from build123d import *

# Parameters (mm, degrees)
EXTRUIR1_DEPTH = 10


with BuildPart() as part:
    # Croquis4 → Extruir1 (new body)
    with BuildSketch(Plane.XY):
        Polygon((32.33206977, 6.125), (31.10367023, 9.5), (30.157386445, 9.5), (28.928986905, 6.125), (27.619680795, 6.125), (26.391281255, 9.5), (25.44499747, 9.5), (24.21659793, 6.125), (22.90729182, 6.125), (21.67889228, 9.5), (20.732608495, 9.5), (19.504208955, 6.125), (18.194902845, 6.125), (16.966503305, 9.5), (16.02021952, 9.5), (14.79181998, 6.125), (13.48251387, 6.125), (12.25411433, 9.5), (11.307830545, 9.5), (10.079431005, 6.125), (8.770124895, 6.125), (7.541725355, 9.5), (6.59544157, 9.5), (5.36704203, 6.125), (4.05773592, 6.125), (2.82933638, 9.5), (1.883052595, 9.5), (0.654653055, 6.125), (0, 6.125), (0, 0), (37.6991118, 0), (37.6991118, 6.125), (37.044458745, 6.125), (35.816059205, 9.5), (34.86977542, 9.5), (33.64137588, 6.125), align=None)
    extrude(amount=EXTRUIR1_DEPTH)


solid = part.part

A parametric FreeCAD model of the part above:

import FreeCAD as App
import Part
import Sketcher

V = App.Vector
Q = App.Units.Quantity

doc = App.newDocument("Part")
body = doc.addObject("PartDesign::Body", "Body")

# Sketch on XY plane
sketch1 = body.newObject("Sketcher::SketchObject", "Sketch")
sketch1.AttachmentSupport = (doc.getObject("XY_Plane"), [""])
sketch1.MapMode = "FlatFace"
sketch1.addGeometry([
    Part.LineSegment(V(32.3, 6.1, 0), V(31.1, 9.5, 0)),  # 0
    Part.LineSegment(V(31.1, 9.5, 0), V(30.2, 9.5, 0)),  # 1
    Part.LineSegment(V(30.2, 9.5, 0), V(28.9, 6.1, 0)),  # 2
    Part.LineSegment(V(28.9, 6.1, 0), V(27.6, 6.1, 0)),  # 3
    Part.LineSegment(V(27.6, 6.1, 0), V(26.4, 9.5, 0)),  # 4
    Part.LineSegment(V(26.4, 9.5, 0), V(25.4, 9.5, 0)),  # 5
    Part.LineSegment(V(25.4, 9.5, 0), V(24.2, 6.1, 0)),  # 6
    Part.LineSegment(V(24.2, 6.1, 0), V(22.9, 6.1, 0)),  # 7
    Part.LineSegment(V(22.9, 6.1, 0), V(21.7, 9.5, 0)),  # 8
    Part.LineSegment(V(21.7, 9.5, 0), V(20.7, 9.5, 0)),  # 9
    Part.LineSegment(V(20.7, 9.5, 0), V(19.5, 6.1, 0)),  # 10
    Part.LineSegment(V(19.5, 6.1, 0), V(18.2, 6.1, 0)),  # 11
    Part.LineSegment(V(18.2, 6.1, 0), V(17, 9.5, 0)),  # 12
    Part.LineSegment(V(17, 9.5, 0), V(16, 9.5, 0)),  # 13
    Part.LineSegment(V(16, 9.5, 0), V(14.8, 6.1, 0)),  # 14
    Part.LineSegment(V(14.8, 6.1, 0), V(13.5, 6.1, 0)),  # 15
    Part.LineSegment(V(13.5, 6.1, 0), V(12.3, 9.5, 0)),  # 16
    Part.LineSegment(V(12.3, 9.5, 0), V(11.3, 9.5, 0)),  # 17
    Part.LineSegment(V(11.3, 9.5, 0), V(10.1, 6.1, 0)),  # 18
    Part.LineSegment(V(10.1, 6.1, 0), V(8.8, 6.1, 0)),  # 19
    Part.LineSegment(V(8.8, 6.1, 0), V(7.5, 9.5, 0)),  # 20
    Part.LineSegment(V(7.5, 9.5, 0), V(6.6, 9.5, 0)),  # 21
    Part.LineSegment(V(6.6, 9.5, 0), V(5.4, 6.1, 0)),  # 22
    Part.LineSegment(V(5.4, 6.1, 0), V(4.1, 6.1, 0)),  # 23
    Part.LineSegment(V(4.1, 6.1, 0), V(2.8, 9.5, 0)),  # 24
    Part.LineSegment(V(2.8, 9.5, 0), V(1.9, 9.5, 0)),  # 25
    Part.LineSegment(V(1.9, 9.5, 0), V(0.7, 6.1, 0)),  # 26
    Part.LineSegment(V(0.7, 6.1, 0), V(0, 6.1, 0)),  # 27
    Part.LineSegment(V(0, 6.1, 0), V(0, 0, 0)),  # 28
    Part.LineSegment(V(0, 0, 0), V(37.7, 0, 0)),  # 29
    Part.LineSegment(V(37.7, 0, 0), V(37.7, 6.1, 0)),  # 30
    Part.LineSegment(V(37.7, 6.1, 0), V(37, 6.1, 0)),  # 31
    Part.LineSegment(V(37, 6.1, 0), V(35.8, 9.5, 0)),  # 32
    Part.LineSegment(V(35.8, 9.5, 0), V(34.9, 9.5, 0)),  # 33
    Part.LineSegment(V(34.9, 9.5, 0), V(33.6, 6.1, 0)),  # 34
    Part.LineSegment(V(33.6, 6.1, 0), V(32.3, 6.1, 0)),  # 35
], False)
sketch1.addConstraint([
    Sketcher.Constraint("Coincident", 0, 2, 1, 1),
    Sketcher.Constraint("Coincident", 1, 2, 2, 1),
    Sketcher.Constraint("Coincident", 2, 2, 3, 1),
    Sketcher.Constraint("Coincident", 3, 2, 4, 1),
    Sketcher.Constraint("Coincident", 4, 2, 5, 1),
    Sketcher.Constraint("Coincident", 5, 2, 6, 1),
    Sketcher.Constraint("Coincident", 6, 2, 7, 1),
    Sketcher.Constraint("Coincident", 7, 2, 8, 1),
    Sketcher.Constraint("Coincident", 8, 2, 9, 1),
    Sketcher.Constraint("Coincident", 9, 2, 10, 1),
    Sketcher.Constraint("Coincident", 10, 2, 11, 1),
    Sketcher.Constraint("Coincident", 11, 2, 12, 1),
    Sketcher.Constraint("Coincident", 12, 2, 13, 1),
    Sketcher.Constraint("Coincident", 13, 2, 14, 1),
    Sketcher.Constraint("Coincident", 14, 2, 15, 1),
    Sketcher.Constraint("Coincident", 15, 2, 16, 1),
    Sketcher.Constraint("Coincident", 16, 2, 17, 1),
    Sketcher.Constraint("Coincident", 17, 2, 18, 1),
    Sketcher.Constraint("Coincident", 18, 2, 19, 1),
    Sketcher.Constraint("Coincident", 19, 2, 20, 1),
    Sketcher.Constraint("Coincident", 20, 2, 21, 1),
    Sketcher.Constraint("Coincident", 21, 2, 22, 1),
    Sketcher.Constraint("Coincident", 22, 2, 23, 1),
    Sketcher.Constraint("Coincident", 23, 2, 24, 1),
    Sketcher.Constraint("Coincident", 24, 2, 25, 1),
    Sketcher.Constraint("Coincident", 25, 2, 26, 1),
    Sketcher.Constraint("Coincident", 26, 2, 27, 1),
    Sketcher.Constraint("Coincident", 27, 2, 28, 1),
    Sketcher.Constraint("Coincident", 28, 2, 29, 1),
    Sketcher.Constraint("Coincident", 29, 2, 30, 1),
    Sketcher.Constraint("Coincident", 30, 2, 31, 1),
    Sketcher.Constraint("Coincident", 31, 2, 32, 1),
    Sketcher.Constraint("Coincident", 32, 2, 33, 1),
    Sketcher.Constraint("Coincident", 33, 2, 34, 1),
    Sketcher.Constraint("Coincident", 34, 2, 35, 1),
    Sketcher.Constraint("Coincident", 35, 2, 0, 1),
    Sketcher.Constraint("Horizontal", 1),
    Sketcher.Constraint("Horizontal", 3),
    Sketcher.Constraint("Horizontal", 5),
    Sketcher.Constraint("Horizontal", 7),
    Sketcher.Constraint("Horizontal", 9),
    Sketcher.Constraint("Horizontal", 11),
    Sketcher.Constraint("Horizontal", 13),
    Sketcher.Constraint("Horizontal", 15),
    Sketcher.Constraint("Horizontal", 17),
    Sketcher.Constraint("Horizontal", 19),
    Sketcher.Constraint("Horizontal", 21),
    Sketcher.Constraint("Horizontal", 23),
    Sketcher.Constraint("Horizontal", 25),
    Sketcher.Constraint("Horizontal", 27),
    Sketcher.Constraint("Vertical", 28),
    Sketcher.Constraint("Horizontal", 29),
    Sketcher.Constraint("Vertical", 30),
    Sketcher.Constraint("Horizontal", 31),
    Sketcher.Constraint("Horizontal", 33),
    Sketcher.Constraint("Horizontal", 35),
    Sketcher.Constraint("Coincident", 28, 2, -1, 1),
    Sketcher.Constraint("Parallel", 0, 4),
    Sketcher.Constraint("Parallel", 2, 6),
    Sketcher.Constraint("Parallel", 4, 8),
    Sketcher.Constraint("Parallel", 6, 10),
    Sketcher.Constraint("Parallel", 8, 12),
    Sketcher.Constraint("Parallel", 10, 14),
    Sketcher.Constraint("Parallel", 12, 16),
    Sketcher.Constraint("Parallel", 14, 18),
    Sketcher.Constraint("Parallel", 16, 20),
    Sketcher.Constraint("Parallel", 18, 22),
    Sketcher.Constraint("Parallel", 20, 24),
    Sketcher.Constraint("Parallel", 22, 26),
    Sketcher.Constraint("Parallel", 24, 32),
    Sketcher.Constraint("Parallel", 26, 34),
    Sketcher.Constraint("Horizontal", 1, 2, 4, 2),
    Sketcher.Constraint("Horizontal", 3, 2, 6, 2),
    Sketcher.Constraint("Horizontal", 5, 2, 8, 2),
    Sketcher.Constraint("Horizontal", 7, 2, 10, 2),
    Sketcher.Constraint("Horizontal", 9, 2, 12, 2),
    Sketcher.Constraint("Horizontal", 11, 2, 14, 2),
    Sketcher.Constraint("Horizontal", 13, 2, 16, 2),
    Sketcher.Constraint("Horizontal", 15, 2, 18, 2),
    Sketcher.Constraint("Horizontal", 17, 2, 20, 2),
    Sketcher.Constraint("Horizontal", 19, 2, 22, 2),
    Sketcher.Constraint("Horizontal", 21, 2, 24, 2),
    Sketcher.Constraint("Horizontal", 23, 2, 26, 2),
    Sketcher.Constraint("Horizontal", 27, 2, 30, 2),
    Sketcher.Constraint("Horizontal", 25, 2, 32, 2),
    Sketcher.Constraint("Horizontal", 31, 2, 34, 2),
    Sketcher.Constraint("Equal", 1, 5),
    Sketcher.Constraint("Equal", 3, 7),
    Sketcher.Constraint("Equal", 5, 9),
    Sketcher.Constraint("Equal", 7, 11),
    Sketcher.Constraint("Equal", 9, 13),
    Sketcher.Constraint("Equal", 11, 15),
    Sketcher.Constraint("Equal", 13, 17),
    Sketcher.Constraint("Equal", 15, 19),
    Sketcher.Constraint("Equal", 17, 21),
    Sketcher.Constraint("Equal", 19, 23),
    Sketcher.Constraint("Equal", 21, 25),
    Sketcher.Constraint("Equal", 27, 31),
    Sketcher.Constraint("Equal", 25, 33),
    Sketcher.Constraint("Equal", 23, 35),
    Sketcher.Constraint("Equal", 0, 2),
    Sketcher.Constraint("Angle", 0, Q("110 deg")),
    Sketcher.Constraint("DistanceY", -1, 1, 0, 2, Q("9.5 mm")),
    Sketcher.Constraint("DistanceY", 28, 2, 28, 1, Q("6.125 mm")),
    Sketcher.Constraint("DistanceX", 29, 1, 29, 2, Q("37.699112 mm")),
    Sketcher.Constraint("DistanceX", 1, 2, 1, 1, Q("0.946284 mm")),
    Sketcher.Constraint("DistanceX", 3, 2, 3, 1, Q("1.309306 mm")),
])
pad1 = body.newObject("PartDesign::Pad", "Pad")
pad1.Profile = sketch1
pad1.Length = 10

doc.recompute()
